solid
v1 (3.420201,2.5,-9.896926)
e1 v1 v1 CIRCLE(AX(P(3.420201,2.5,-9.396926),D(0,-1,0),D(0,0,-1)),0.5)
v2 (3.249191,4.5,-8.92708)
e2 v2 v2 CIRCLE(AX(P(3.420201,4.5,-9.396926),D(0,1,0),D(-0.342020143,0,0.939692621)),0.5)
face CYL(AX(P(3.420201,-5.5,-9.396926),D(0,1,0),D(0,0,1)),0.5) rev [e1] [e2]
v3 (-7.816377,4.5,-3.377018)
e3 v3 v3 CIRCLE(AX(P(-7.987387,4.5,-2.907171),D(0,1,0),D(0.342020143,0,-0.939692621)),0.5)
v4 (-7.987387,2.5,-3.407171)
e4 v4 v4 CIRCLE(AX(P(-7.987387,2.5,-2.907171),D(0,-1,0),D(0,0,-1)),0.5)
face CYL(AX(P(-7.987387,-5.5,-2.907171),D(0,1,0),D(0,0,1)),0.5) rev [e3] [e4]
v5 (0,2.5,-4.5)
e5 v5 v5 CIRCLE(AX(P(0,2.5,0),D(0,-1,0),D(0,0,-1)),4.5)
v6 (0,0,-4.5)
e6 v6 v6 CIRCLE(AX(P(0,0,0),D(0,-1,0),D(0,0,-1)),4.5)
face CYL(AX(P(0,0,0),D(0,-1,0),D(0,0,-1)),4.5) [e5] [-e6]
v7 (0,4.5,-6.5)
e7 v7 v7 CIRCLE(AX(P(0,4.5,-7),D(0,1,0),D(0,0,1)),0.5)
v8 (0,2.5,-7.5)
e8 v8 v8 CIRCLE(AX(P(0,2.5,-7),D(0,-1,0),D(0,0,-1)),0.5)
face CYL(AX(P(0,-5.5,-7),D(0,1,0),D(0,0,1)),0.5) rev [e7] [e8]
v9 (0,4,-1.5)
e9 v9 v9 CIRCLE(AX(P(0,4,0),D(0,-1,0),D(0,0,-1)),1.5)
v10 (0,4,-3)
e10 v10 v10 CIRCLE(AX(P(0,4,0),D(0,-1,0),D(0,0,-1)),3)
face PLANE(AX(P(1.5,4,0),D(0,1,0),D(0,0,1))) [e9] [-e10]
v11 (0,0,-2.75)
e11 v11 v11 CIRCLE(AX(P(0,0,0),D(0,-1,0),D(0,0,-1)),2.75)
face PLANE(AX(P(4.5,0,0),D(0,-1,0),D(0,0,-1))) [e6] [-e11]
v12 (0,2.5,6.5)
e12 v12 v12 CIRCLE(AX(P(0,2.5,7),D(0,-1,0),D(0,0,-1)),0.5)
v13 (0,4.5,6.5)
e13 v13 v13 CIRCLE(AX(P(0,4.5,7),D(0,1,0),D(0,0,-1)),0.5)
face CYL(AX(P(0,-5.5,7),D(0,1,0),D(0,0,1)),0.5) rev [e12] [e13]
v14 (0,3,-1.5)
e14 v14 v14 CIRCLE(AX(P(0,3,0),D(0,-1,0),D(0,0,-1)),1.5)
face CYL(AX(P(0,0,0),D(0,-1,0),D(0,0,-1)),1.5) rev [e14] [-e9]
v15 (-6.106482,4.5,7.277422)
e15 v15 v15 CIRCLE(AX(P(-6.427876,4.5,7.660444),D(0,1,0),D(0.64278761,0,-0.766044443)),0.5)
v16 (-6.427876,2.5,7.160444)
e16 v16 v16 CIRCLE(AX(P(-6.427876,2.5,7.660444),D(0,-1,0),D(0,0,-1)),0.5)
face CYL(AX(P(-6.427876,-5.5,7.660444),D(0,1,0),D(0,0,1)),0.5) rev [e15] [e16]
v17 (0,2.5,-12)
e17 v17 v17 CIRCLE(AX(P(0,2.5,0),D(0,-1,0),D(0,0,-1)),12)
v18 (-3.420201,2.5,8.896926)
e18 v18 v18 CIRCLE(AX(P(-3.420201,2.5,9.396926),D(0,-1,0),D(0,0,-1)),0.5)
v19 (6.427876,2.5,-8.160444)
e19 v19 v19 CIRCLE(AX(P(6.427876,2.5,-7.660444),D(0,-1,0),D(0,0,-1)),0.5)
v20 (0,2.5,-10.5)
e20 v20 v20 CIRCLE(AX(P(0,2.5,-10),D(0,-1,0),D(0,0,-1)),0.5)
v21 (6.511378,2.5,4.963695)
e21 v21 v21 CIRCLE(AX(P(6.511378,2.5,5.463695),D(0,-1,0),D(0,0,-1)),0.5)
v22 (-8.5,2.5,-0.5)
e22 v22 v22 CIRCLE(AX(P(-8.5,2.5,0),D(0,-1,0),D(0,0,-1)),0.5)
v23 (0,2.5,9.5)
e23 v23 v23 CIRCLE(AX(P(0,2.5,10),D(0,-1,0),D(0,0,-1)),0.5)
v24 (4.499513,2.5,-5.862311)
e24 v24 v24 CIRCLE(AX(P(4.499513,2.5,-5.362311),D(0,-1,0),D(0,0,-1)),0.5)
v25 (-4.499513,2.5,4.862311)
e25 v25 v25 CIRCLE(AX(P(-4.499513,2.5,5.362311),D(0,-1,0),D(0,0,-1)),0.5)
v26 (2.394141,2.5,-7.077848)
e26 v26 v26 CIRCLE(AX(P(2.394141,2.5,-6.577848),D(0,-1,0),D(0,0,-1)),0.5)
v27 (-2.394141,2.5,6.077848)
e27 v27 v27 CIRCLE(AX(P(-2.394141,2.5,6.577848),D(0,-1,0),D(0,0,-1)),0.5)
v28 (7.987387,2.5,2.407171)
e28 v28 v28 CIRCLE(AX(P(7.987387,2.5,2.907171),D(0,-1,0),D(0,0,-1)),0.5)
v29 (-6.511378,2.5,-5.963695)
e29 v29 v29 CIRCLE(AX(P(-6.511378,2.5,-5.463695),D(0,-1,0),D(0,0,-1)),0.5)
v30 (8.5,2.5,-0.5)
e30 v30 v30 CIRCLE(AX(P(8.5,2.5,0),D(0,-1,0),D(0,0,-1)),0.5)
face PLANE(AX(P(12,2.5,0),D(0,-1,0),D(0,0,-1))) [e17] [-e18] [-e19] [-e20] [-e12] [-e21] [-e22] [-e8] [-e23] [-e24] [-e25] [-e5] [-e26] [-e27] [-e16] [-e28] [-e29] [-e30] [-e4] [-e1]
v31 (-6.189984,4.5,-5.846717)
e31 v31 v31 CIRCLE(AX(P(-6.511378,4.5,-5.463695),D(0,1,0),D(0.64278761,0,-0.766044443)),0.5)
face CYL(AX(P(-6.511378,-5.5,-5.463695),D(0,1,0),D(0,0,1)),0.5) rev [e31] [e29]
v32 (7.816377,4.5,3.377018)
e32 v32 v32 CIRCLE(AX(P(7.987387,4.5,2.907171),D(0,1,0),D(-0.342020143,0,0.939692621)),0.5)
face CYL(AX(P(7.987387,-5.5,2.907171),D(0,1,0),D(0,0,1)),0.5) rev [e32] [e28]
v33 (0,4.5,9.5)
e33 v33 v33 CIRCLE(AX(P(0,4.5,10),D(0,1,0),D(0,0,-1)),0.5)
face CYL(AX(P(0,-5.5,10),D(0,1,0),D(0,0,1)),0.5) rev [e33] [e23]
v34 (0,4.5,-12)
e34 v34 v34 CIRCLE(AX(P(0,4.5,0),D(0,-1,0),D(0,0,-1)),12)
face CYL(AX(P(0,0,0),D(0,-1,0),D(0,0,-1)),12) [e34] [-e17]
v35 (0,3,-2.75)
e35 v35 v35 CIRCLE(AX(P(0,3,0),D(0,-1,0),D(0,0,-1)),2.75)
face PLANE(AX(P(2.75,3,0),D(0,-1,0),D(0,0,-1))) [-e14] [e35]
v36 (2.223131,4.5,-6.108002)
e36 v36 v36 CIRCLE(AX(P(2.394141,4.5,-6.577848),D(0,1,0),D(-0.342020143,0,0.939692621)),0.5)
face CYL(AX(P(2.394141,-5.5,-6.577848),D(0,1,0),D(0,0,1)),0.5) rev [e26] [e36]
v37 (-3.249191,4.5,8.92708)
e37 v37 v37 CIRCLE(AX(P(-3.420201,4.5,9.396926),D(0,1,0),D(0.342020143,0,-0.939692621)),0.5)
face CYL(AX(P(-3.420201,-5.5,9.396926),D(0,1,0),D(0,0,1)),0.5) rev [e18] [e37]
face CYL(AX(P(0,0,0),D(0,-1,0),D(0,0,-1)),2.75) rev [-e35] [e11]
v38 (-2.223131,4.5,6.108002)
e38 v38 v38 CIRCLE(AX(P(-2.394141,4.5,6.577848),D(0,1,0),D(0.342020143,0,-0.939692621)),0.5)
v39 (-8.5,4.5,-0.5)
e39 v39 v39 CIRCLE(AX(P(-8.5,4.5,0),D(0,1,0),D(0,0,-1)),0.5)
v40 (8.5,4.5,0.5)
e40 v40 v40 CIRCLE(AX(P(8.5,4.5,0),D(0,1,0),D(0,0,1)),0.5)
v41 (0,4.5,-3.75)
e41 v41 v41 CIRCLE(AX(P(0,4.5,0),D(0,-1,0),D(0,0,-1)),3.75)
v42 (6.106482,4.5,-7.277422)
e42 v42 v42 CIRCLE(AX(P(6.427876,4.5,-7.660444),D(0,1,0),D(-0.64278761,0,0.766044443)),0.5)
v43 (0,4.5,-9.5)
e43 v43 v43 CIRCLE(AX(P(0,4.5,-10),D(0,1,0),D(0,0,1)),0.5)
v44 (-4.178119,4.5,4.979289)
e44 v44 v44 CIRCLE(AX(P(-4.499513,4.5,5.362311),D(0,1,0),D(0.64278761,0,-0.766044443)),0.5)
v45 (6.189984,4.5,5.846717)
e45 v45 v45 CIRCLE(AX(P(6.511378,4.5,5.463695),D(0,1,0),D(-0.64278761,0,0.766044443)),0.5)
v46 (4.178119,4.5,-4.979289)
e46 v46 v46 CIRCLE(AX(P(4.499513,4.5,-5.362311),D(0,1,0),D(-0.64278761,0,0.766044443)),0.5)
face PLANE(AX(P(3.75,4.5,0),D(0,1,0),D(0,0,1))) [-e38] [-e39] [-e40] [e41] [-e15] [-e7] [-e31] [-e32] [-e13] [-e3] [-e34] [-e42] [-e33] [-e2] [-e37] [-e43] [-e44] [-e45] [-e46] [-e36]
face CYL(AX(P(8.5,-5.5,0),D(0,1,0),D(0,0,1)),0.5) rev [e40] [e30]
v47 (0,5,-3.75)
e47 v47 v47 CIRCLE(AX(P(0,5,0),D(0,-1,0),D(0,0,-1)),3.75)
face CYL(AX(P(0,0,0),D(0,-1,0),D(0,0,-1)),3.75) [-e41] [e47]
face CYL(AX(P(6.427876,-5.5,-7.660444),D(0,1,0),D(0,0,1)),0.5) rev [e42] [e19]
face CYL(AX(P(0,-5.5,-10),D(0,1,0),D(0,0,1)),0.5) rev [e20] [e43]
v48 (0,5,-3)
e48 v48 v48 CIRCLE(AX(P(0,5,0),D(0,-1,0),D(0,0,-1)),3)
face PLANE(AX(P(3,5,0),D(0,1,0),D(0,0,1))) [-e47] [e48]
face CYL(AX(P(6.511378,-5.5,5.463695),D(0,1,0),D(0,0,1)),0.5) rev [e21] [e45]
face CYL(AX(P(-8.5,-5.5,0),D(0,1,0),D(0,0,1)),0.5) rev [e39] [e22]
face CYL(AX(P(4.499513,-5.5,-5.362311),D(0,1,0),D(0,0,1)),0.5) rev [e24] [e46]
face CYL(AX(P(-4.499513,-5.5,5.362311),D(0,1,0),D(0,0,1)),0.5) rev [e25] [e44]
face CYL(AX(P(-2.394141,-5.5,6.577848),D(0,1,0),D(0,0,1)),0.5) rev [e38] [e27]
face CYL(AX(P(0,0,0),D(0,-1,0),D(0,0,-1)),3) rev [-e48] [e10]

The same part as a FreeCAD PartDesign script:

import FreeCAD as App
import Part
import Sketcher

V = App.Vector


def add_polygon(sketch, points):
    """Adds a closed chain of lines whose ends are joined by coincident constraints."""
    first, n = sketch.GeometryCount, len(points)
    for a, b in zip(points, points[1:] + points[:1]):
        sketch.addGeometry(Part.LineSegment(App.Vector(*a, 0), App.Vector(*b, 0)), False)
    for i in range(n):
        sketch.addConstraint(Sketcher.Constraint("Coincident", first + i, 2, first + (i + 1) % n, 1))

doc = App.newDocument("Part")
body = doc.addObject("PartDesign::Body", "Body")

# Sketch on XY plane
sketch1 = body.newObject("Sketcher::SketchObject", "Sketch")
sketch1.AttachmentSupport = (doc.getObject("XY_Plane"), [""])
sketch1.MapMode = "FlatFace"
add_polygon(sketch1, [(2.8, 3), (2.8, 0), (4.5, 0), (4.5, 2.5), (12, 2.5), (12, 4.5), (3.8, 4.5), (3.8, 5), (3, 5), (3, 4), (1.5, 4), (1.5, 3)])  # lines 0-11
sketch1.addConstraint([
    Sketcher.Constraint("Vertical", 0),
    Sketcher.Constraint("Horizontal", 1),
    Sketcher.Constraint("Vertical", 2),
    Sketcher.Constraint("Horizontal", 3),
    Sketcher.Constraint("Vertical", 4),
    Sketcher.Constraint("Horizontal", 5),
    Sketcher.Constraint("Vertical", 6),
    Sketcher.Constraint("Horizontal", 7),
    Sketcher.Constraint("Vertical", 8),
    Sketcher.Constraint("Horizontal", 9),
    Sketcher.Constraint("Vertical", 10),
    Sketcher.Constraint("Horizontal", 11),
    Sketcher.Constraint("PointOnObject", 0, 2, -1),
    Sketcher.Constraint("Equal", 8, 10),
    Sketcher.Constraint("DistanceY", 0, 2, 0, 1, 3.0),
    Sketcher.Constraint("DistanceY", 4, 1, 4, 2, 2.0),
    Sketcher.Constraint("DistanceY", 8, 2, 8, 1, 1.0),
    Sketcher.Constraint("DistanceX", 3, 1, 3, 2, 7.5),
    Sketcher.Constraint("DistanceX", 9, 2, 9, 1, 1.5),
    Sketcher.Constraint("DistanceY", 2, 1, 2, 2, 2.5),
    Sketcher.Constraint("DistanceX", -1, 1, 3, 2, 12.0),
    Sketcher.Constraint("DistanceX", -1, 1, 7, 2, 3.0),
    Sketcher.Constraint("DistanceX", 0, 2, 5, 2, 1.0),
    Sketcher.Constraint("DistanceX", 1, 1, 1, 2, 1.75),
])
revolution = body.newObject("PartDesign::Revolution", "Revolution")
revolution.Profile = sketch1
revolution.ReferenceAxis = (sketch1, ["V_Axis"])
revolution.Angle = 360

# Sketch on XZ plane
sketch2 = body.newObject("Sketcher::SketchObject", "Sketch001")
sketch2.AttachmentSupport = (doc.getObject("XZ_Plane"), [""])
sketch2.MapMode = "FlatFace"
sketch2.AttachmentOffset = App.Placement(V(0, 0, -4.5), App.Rotation())
sketch2.addGeometry([
    Part.Circle(V(0, -10, 0), V(0, 0, 1), 0.5),  # 0
    Part.Circle(V(8.5, 0, 0), V(0, 0, 1), 0.5),  # 1
    Part.Circle(V(0, -7, 0), V(0, 0, 1), 0.5),  # 2
    Part.Circle(V(0, 7, 0), V(0, 0, 1), 0.5),  # 3
    Part.Circle(V(0, 10, 0), V(0, 0, 1), 0.5),  # 4
    Part.Circle(V(-8.5, 0, 0), V(0, 0, 1), 0.5),  # 5
], False)
sketch2.addConstraint([
    Sketcher.Constraint("Equal", 0, 1),
    Sketcher.Constraint("Equal", 1, 2),
    Sketcher.Constraint("Equal", 2, 3),
    Sketcher.Constraint("Equal", 3, 4),
    Sketcher.Constraint("Equal", 4, 5),
    Sketcher.Constraint("Symmetric", 2, 3, 3, 3, -1, 1),
    Sketcher.Constraint("Symmetric", 0, 3, 4, 3, -1, 1),
    Sketcher.Constraint("Symmetric", 1, 3, 5, 3, -1, 1),
    Sketcher.Constraint("PointOnObject", 0, 3, -2),
    Sketcher.Constraint("PointOnObject", 1, 3, -1),
    Sketcher.Constraint("PointOnObject", 2, 3, -2),
    Sketcher.Constraint("Diameter", 0, 1.0),
    Sketcher.Constraint("DistanceY", 0, 3, -1, 1, 10.0),
    Sketcher.Constraint("DistanceY", 2, 3, -1, 1, 7.0),
    Sketcher.Constraint("DistanceX", 5, 3, 1, 3, 17.0),
])
pocket1 = body.newObject("PartDesign::Pocket", "Pocket")
pocket1.Profile = sketch2
pocket1.Length = 10
pocket1.Reversed = True
doc.recompute()

polarpattern = body.newObject("PartDesign::PolarPattern", "PolarPattern")
polarpattern.Originals = [pocket1]
polarpattern.Axis = (doc.getObject("Y_Axis"), [""])
polarpattern.Angle = 40
polarpattern.Occurrences = 3
polarpattern.Reversed = True
body.Tip = polarpattern

doc.recompute()
